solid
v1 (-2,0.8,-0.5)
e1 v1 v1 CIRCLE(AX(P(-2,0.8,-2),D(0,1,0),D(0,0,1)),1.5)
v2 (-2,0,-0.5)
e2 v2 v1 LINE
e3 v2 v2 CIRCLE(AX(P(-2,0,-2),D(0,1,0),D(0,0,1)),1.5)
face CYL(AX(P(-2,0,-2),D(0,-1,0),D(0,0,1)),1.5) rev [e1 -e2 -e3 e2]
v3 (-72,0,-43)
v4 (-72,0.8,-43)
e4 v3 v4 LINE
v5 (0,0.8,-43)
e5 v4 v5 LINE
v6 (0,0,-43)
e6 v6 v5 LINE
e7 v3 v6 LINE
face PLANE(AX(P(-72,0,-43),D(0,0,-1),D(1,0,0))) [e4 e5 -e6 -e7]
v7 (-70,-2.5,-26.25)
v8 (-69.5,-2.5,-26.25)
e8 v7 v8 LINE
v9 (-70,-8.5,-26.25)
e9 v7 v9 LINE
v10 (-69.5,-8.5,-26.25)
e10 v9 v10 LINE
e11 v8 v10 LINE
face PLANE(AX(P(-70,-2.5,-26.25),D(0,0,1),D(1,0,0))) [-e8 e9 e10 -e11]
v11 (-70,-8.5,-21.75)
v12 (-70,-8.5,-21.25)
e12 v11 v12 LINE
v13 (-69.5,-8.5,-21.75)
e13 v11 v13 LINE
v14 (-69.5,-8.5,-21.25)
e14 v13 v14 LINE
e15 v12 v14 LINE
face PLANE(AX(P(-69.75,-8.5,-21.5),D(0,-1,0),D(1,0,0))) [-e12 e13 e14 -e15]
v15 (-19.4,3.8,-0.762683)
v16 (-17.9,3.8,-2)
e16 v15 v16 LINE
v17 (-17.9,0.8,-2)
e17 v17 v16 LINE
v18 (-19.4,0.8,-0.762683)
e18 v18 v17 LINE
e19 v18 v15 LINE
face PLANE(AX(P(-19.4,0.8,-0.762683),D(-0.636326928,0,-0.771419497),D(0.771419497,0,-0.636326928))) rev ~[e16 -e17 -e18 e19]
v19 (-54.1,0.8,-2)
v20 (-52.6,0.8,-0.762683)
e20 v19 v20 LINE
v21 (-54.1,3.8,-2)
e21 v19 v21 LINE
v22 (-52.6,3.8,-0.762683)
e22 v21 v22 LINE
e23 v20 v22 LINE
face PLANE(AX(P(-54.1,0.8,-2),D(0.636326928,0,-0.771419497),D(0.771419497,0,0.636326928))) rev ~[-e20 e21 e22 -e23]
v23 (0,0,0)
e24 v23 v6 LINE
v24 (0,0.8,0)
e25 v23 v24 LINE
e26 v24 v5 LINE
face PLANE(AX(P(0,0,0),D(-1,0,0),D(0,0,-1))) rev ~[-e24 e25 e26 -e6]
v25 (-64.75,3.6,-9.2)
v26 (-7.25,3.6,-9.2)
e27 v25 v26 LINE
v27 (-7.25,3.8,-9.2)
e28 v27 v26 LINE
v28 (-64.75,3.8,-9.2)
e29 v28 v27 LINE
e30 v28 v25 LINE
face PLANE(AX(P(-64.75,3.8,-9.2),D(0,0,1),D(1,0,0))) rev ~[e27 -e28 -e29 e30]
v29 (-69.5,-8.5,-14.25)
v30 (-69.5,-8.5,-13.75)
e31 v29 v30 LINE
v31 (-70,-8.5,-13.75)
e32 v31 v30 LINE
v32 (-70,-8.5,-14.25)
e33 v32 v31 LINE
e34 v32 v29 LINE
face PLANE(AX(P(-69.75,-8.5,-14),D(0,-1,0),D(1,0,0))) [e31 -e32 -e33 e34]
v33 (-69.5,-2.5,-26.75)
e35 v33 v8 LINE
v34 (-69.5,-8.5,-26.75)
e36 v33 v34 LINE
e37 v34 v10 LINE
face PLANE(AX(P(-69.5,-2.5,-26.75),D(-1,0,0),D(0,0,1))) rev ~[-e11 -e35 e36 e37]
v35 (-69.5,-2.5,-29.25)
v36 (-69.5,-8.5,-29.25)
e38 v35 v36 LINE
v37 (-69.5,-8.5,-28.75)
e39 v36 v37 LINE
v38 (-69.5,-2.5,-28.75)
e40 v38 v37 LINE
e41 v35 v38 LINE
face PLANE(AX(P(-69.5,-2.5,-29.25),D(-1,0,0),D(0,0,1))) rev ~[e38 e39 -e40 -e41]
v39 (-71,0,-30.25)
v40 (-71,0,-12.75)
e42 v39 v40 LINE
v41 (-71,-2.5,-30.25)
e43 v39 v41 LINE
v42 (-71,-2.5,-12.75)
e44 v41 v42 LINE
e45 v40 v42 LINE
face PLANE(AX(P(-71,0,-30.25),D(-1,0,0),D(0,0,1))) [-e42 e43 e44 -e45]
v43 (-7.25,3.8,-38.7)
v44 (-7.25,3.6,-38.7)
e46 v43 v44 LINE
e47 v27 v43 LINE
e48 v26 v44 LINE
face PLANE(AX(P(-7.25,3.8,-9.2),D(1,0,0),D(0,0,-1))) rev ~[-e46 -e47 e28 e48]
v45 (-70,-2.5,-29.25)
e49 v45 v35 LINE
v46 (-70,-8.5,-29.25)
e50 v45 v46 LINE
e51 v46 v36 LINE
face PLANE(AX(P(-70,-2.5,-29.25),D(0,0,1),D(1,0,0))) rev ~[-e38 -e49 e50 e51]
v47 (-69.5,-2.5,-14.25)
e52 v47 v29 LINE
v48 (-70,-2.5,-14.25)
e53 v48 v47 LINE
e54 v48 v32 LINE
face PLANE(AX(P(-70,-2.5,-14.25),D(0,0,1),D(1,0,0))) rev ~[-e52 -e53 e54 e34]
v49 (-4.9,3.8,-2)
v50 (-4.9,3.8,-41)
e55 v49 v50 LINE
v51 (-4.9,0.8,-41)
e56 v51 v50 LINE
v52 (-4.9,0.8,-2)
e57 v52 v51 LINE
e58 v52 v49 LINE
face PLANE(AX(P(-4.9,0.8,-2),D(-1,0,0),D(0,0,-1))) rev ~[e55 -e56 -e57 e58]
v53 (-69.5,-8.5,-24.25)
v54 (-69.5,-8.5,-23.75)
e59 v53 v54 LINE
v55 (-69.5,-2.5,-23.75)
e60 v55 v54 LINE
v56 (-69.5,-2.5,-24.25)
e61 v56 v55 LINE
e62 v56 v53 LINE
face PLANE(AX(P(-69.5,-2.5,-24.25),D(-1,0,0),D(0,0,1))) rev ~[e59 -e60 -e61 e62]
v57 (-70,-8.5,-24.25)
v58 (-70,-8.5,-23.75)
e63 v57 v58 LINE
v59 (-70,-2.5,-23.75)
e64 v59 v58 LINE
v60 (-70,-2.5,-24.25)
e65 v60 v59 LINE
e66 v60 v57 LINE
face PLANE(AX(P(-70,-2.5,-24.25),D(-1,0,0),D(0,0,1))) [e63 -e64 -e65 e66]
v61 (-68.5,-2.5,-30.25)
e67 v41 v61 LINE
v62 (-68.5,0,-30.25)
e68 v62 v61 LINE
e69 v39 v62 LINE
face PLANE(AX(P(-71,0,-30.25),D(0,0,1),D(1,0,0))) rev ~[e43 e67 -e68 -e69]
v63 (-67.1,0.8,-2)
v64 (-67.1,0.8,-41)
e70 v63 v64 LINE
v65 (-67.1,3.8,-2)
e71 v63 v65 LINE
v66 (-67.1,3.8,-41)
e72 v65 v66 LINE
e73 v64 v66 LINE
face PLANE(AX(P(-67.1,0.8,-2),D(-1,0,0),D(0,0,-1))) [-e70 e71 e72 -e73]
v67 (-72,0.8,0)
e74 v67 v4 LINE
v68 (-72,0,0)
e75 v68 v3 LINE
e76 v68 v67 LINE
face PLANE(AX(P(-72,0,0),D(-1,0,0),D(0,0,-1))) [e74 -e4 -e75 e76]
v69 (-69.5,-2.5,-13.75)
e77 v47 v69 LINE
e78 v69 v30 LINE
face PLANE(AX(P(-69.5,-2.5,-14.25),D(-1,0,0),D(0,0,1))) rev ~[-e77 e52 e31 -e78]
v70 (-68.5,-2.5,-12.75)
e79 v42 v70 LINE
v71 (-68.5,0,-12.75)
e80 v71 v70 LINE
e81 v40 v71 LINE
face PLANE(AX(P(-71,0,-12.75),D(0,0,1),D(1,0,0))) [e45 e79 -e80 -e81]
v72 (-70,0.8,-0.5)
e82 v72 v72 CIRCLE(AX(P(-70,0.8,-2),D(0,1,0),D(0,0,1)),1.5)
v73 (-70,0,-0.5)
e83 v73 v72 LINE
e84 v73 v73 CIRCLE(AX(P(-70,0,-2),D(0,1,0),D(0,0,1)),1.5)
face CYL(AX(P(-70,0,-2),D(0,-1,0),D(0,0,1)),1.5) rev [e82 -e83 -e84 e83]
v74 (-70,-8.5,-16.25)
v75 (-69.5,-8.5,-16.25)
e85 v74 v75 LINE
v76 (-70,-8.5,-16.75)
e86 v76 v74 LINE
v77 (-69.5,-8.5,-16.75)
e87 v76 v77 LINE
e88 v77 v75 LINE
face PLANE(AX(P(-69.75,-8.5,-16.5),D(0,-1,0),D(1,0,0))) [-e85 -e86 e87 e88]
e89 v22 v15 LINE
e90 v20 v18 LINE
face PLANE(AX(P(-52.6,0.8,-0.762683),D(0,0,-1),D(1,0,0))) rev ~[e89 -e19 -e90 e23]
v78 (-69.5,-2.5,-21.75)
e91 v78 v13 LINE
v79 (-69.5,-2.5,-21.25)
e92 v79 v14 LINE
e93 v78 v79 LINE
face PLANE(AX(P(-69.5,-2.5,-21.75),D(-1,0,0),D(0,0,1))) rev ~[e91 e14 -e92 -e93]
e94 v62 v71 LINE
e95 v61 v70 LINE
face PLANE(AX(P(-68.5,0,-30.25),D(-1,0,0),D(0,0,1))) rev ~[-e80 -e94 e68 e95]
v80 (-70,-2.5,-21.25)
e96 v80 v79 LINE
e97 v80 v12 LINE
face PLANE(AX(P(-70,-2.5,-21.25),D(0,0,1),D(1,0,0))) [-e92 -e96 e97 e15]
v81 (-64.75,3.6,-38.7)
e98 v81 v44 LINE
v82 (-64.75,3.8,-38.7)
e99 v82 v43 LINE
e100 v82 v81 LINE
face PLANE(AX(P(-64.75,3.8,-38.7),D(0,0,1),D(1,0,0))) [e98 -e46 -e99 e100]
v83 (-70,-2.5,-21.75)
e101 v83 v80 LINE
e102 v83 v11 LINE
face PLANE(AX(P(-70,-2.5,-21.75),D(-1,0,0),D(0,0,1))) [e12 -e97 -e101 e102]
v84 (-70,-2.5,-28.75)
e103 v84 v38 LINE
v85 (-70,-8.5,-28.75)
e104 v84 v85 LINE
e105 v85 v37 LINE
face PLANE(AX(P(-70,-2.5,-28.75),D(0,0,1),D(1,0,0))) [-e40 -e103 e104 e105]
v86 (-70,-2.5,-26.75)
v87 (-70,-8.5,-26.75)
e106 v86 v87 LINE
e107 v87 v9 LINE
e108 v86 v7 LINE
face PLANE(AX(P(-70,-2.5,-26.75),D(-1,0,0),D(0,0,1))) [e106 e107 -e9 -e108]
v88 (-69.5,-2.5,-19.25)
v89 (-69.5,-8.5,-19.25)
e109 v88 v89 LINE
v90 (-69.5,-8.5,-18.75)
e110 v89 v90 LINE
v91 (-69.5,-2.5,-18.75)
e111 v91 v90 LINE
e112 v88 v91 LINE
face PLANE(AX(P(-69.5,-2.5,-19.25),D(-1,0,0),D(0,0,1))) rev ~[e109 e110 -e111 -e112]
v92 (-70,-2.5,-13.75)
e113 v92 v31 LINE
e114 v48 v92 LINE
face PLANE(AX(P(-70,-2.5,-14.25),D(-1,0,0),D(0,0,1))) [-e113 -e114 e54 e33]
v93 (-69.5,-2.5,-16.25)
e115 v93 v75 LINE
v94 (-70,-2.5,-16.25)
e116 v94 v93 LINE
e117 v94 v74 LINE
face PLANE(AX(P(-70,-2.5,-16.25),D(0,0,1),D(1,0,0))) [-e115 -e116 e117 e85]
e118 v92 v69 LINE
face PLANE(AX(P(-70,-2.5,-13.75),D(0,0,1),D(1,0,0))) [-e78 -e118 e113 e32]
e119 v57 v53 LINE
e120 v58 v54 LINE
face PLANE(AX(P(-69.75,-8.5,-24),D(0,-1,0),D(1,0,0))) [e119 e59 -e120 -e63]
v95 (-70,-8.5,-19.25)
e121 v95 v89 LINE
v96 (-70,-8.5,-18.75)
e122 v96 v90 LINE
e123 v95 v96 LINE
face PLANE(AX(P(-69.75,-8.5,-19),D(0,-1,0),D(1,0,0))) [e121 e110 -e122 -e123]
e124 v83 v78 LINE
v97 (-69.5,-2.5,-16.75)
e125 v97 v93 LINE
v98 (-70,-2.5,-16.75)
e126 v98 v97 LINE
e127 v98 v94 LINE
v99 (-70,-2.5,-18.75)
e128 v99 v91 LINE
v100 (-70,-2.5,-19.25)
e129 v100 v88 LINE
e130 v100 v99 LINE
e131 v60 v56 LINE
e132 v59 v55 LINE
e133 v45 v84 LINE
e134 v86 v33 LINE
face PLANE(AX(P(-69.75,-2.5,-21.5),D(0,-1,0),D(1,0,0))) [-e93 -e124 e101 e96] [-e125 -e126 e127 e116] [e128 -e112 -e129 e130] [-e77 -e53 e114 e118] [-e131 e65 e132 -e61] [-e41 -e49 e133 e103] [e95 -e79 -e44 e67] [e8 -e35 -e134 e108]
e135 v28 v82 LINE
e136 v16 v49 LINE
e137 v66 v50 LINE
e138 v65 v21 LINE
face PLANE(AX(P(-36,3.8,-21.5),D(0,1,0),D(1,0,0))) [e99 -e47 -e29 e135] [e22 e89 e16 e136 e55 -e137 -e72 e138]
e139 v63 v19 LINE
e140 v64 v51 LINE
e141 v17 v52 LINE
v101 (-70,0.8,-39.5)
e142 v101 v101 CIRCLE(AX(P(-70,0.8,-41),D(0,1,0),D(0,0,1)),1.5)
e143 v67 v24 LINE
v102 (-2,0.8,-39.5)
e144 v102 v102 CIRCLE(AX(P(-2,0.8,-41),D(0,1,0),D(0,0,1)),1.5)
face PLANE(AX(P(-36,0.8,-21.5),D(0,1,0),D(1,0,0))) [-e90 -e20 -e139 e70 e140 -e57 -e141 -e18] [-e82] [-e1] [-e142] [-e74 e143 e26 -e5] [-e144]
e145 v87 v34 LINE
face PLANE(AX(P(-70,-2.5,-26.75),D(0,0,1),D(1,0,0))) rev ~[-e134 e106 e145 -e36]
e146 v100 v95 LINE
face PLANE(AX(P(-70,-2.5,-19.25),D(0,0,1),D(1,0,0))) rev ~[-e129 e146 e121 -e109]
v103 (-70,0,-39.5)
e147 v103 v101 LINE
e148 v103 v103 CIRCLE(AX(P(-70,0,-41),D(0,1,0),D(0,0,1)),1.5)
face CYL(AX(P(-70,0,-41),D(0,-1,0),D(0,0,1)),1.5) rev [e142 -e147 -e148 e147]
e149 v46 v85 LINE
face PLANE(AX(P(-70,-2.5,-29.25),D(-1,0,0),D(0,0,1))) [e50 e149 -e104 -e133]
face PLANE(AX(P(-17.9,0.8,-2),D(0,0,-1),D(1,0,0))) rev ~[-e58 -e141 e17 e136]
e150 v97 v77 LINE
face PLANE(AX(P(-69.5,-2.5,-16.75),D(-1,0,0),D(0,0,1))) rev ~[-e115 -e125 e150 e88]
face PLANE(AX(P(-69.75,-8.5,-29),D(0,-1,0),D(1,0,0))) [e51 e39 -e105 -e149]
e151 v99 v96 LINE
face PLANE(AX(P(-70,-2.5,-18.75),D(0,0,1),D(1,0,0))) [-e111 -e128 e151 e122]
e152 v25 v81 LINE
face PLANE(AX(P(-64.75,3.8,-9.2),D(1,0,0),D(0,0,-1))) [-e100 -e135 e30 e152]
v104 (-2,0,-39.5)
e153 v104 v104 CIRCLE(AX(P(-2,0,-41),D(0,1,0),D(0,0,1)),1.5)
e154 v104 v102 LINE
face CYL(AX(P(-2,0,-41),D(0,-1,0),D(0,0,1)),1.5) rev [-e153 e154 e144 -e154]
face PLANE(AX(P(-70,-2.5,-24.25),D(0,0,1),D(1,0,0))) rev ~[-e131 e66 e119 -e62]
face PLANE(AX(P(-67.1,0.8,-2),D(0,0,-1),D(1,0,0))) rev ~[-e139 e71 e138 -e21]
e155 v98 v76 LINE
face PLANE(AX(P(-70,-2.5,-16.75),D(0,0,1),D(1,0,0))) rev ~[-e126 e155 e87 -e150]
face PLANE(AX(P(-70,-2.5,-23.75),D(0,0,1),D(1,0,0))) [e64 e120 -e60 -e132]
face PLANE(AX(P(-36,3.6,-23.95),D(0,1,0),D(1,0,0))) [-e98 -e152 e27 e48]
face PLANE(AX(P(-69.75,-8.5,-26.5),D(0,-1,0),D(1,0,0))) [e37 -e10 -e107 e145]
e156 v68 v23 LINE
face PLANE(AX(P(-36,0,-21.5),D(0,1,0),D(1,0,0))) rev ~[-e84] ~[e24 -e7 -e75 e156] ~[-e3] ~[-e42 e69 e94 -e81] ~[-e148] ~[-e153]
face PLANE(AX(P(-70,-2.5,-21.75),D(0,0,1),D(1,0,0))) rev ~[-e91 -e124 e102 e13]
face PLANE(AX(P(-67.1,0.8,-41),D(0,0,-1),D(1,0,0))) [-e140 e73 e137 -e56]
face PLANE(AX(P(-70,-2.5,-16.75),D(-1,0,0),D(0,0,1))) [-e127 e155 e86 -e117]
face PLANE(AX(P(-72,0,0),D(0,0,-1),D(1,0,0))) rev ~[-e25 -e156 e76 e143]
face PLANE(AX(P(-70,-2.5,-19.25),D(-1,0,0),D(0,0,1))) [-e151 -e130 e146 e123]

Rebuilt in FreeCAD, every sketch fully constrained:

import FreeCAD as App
import Part
import Sketcher

V = App.Vector

doc = App.newDocument("Part")
body = doc.addObject("PartDesign::Body", "Body")

# Sketch on XZ plane
sketch1 = body.newObject("Sketcher::SketchObject", "Sketch")
sketch1.AttachmentSupport = (doc.getObject("XZ_Plane"), [""])
sketch1.MapMode = "FlatFace"
sketch1.addGeometry([
    Part.LineSegment(V(-72, -43, 0), V(-72, 0, 0)),  # 0
    Part.LineSegment(V(-72, 0, 0), V(0, 0, 0)),  # 1
    Part.LineSegment(V(0, 0, 0), V(0, -43, 0)),  # 2
    Part.LineSegment(V(0, -43, 0), V(-72, -43, 0)),  # 3
    Part.Circle(V(-70, -2, 0), V(0, 0, 1), 1.5),  # 4
    Part.Circle(V(-2, -2, 0), V(0, 0, 1), 1.5),  # 5
    Part.Circle(V(-70, -41, 0), V(0, 0, 1), 1.5),  # 6
    Part.Circle(V(-2, -41, 0), V(0, 0, 1), 1.5),  # 7
], False)
sketch1.addConstraint([
    Sketcher.Constraint("Coincident", 0, 2, 1, 1),
    Sketcher.Constraint("Coincident", 1, 2, 2, 1),
    Sketcher.Constraint("Coincident", 2, 2, 3, 1),
    Sketcher.Constraint("Coincident", 3, 2, 0, 1),
    Sketcher.Constraint("Vertical", 0),
    Sketcher.Constraint("Horizontal", 1),
    Sketcher.Constraint("Vertical", 2),
    Sketcher.Constraint("Horizontal", 3),
    Sketcher.Constraint("Coincident", 1, 2, -1, 1),
    Sketcher.Constraint("Equal", 4, 5),
    Sketcher.Constraint("Equal", 5, 6),
    Sketcher.Constraint("Equal", 6, 7),
    Sketcher.Constraint("Horizontal", 4, 3, 5, 3),
    Sketcher.Constraint("Horizontal", 6, 3, 7, 3),
    Sketcher.Constraint("Vertical", 4, 3, 6, 3),
    Sketcher.Constraint("Vertical", 5, 3, 7, 3),
    Sketcher.Constraint("Diameter", 4, 3.0),
    Sketcher.Constraint("DistanceX", 1, 1, 1, 2, 72.0),
    Sketcher.Constraint("DistanceY", 0, 1, 0, 2, 43.0),
    Sketcher.Constraint("DistanceX", 4, 3, -1, 1, 70.0),
    Sketcher.Constraint("DistanceY", 4, 3, -1, 1, 2.0),
    Sketcher.Constraint("DistanceX", 5, 3, -1, 1, 2.0),
    Sketcher.Constraint("DistanceY", 6, 3, -1, 1, 41.0),
])
pad1 = body.newObject("PartDesign::Pad", "Pad")
pad1.Profile = sketch1
pad1.Length = 0.8
pad1.Reversed = True

# Sketch on XZ plane
sketch2 = body.newObject("Sketcher::SketchObject", "Sketch001")
sketch2.AttachmentSupport = (doc.getObject("XZ_Plane"), [""])
sketch2.MapMode = "FlatFace"
sketch2.AttachmentOffset = App.Placement(V(0, 0, -0.8), App.Rotation())
sketch2.addGeometry([
    Part.LineSegment(V(-67.1, -41, 0), V(-67.1, -2, 0)),  # 0
    Part.LineSegment(V(-67.1, -2, 0), V(-54.1, -2, 0)),  # 1
    Part.LineSegment(V(-54.1, -2, 0), V(-52.6, -0.8, 0)),  # 2
    Part.LineSegment(V(-52.6, -0.8, 0), V(-19.4, -0.8, 0)),  # 3
    Part.LineSegment(V(-19.4, -0.8, 0), V(-17.9, -2, 0)),  # 4
    Part.LineSegment(V(-17.9, -2, 0), V(-4.9, -2, 0)),  # 5
    Part.LineSegment(V(-4.9, -2, 0), V(-4.9, -41, 0)),  # 6
    Part.LineSegment(V(-4.9, -41, 0), V(-67.1, -41, 0)),  # 7
], False)
sketch2.addConstraint([
    Sketcher.Constraint("Coincident", 0, 2, 1, 1),
    Sketcher.Constraint("Coincident", 1, 2, 2, 1),
    Sketcher.Constraint("Coincident", 2, 2, 3, 1),
    Sketcher.Constraint("Coincident", 3, 2, 4, 1),
    Sketcher.Constraint("Coincident", 4, 2, 5, 1),
    Sketcher.Constraint("Coincident", 5, 2, 6, 1),
    Sketcher.Constraint("Coincident", 6, 2, 7, 1),
    Sketcher.Constraint("Coincident", 7, 2, 0, 1),
    Sketcher.Constraint("Vertical", 0),
    Sketcher.Constraint("Horizontal", 1),
    Sketcher.Constraint("Horizontal", 3),
    Sketcher.Constraint("Horizontal", 5),
    Sketcher.Constraint("Vertical", 6),
    Sketcher.Constraint("Horizontal", 7),
    Sketcher.Constraint("Horizontal", 1, 2, 4, 2),
    Sketcher.Constraint("Equal", 1, 5),
    Sketcher.Constraint("Equal", 2, 4),
    Sketcher.Constraint("DistanceX", 1, 1, 1, 2, 13.0),
    Sketcher.Constraint("DistanceY", 0, 1, 0, 2, 39.0),
    Sketcher.Constraint("DistanceX", 3, 1, 3, 2, 33.2),
    Sketcher.Constraint("DistanceX", 7, 2, 7, 1, 62.2),
    Sketcher.Constraint("DistanceY", 0, 2, -1, 1, 2.0),
    Sketcher.Constraint("DistanceX", 0, 2, -1, 1, 67.1),
    Sketcher.Constraint("Distance", 2, 1.944467),
])
pad2 = body.newObject("PartDesign::Pad", "Pad001")
pad2.Profile = sketch2
pad2.Length = 3
pad2.Reversed = True

# Sketch on XZ plane
sketch3 = body.newObject("Sketcher::SketchObject", "Sketch002")
sketch3.AttachmentSupport = (doc.getObject("XZ_Plane"), [""])
sketch3.MapMode = "FlatFace"
sketch3.AttachmentOffset = App.Placement(V(0, 0, -3.8), App.Rotation())
sketch3.addGeometry([
    Part.LineSegment(V(-65, -39, 0), V(-65, -9, 0)),
    Part.LineSegment(V(-65, -9, 0), V(-7, -9, 0)),
    Part.LineSegment(V(-7, -9, 0), V(-7, -39, 0)),
    Part.LineSegment(V(-7, -39, 0), V(-65, -39, 0)),
], False)
sketch3.addConstraint([
    Sketcher.Constraint("Coincident", 0, 2, 1, 1),
    Sketcher.Constraint("Coincident", 1, 2, 2, 1),
    Sketcher.Constraint("Coincident", 2, 2, 3, 1),
    Sketcher.Constraint("Coincident", 3, 2, 0, 1),
    Sketcher.Constraint("Vertical", 0),
    Sketcher.Constraint("Horizontal", 1),
    Sketcher.Constraint("Vertical", 2),
    Sketcher.Constraint("Horizontal", 3),
    Sketcher.Constraint("DistanceX", 1, 1, 1, 2, 57.5),
    Sketcher.Constraint("DistanceY", 0, 1, 0, 2, 29.5),
    Sketcher.Constraint("DistanceY", 0, 2, -1, 1, 9.2),
    Sketcher.Constraint("DistanceX", 0, 2, -1, 1, 64.75),
])
pocket1 = body.newObject("PartDesign::Pocket", "Pocket")
pocket1.Profile = sketch3
pocket1.Length = 0.2
pocket1.Reversed = True

# Sketch on XZ plane
sketch4 = body.newObject("Sketcher::SketchObject", "Sketch003")
sketch4.AttachmentSupport = (doc.getObject("XZ_Plane"), [""])
sketch4.MapMode = "FlatFace"
sketch4.addGeometry([
    Part.LineSegment(V(-71, -12.8, 0), V(-71, -30.2, 0)),
    Part.LineSegment(V(-71, -30.2, 0), V(-68.5, -30.2, 0)),
    Part.LineSegment(V(-68.5, -30.2, 0), V(-68.5, -12.8, 0)),
    Part.LineSegment(V(-68.5, -12.8, 0), V(-71, -12.8, 0)),
], False)
sketch4.addConstraint([
    Sketcher.Constraint("Coincident", 0, 2, 1, 1),
    Sketcher.Constraint("Coincident", 1, 2, 2, 1),
    Sketcher.Constraint("Coincident", 2, 2, 3, 1),
    Sketcher.Constraint("Coincident", 3, 2, 0, 1),
    Sketcher.Constraint("Vertical", 0),
    Sketcher.Constraint("Horizontal", 1),
    Sketcher.Constraint("Vertical", 2),
    Sketcher.Constraint("Horizontal", 3),
    Sketcher.Constraint("DistanceX", 1, 1, 1, 2, 2.5),
    Sketcher.Constraint("DistanceY", 0, 2, 0, 1, 17.5),
    Sketcher.Constraint("DistanceX", 0, 2, -1, 1, 71.0),
    Sketcher.Constraint("DistanceY", 0, 2, -1, 1, 30.25),
])
pad3 = body.newObject("PartDesign::Pad", "Pad002")
pad3.Profile = sketch4
pad3.Length = 2.5

# Sketch on XZ plane
sketch5 = body.newObject("Sketcher::SketchObject", "Sketch004")
sketch5.AttachmentSupport = (doc.getObject("XZ_Plane"), [""])
sketch5.MapMode = "FlatFace"
sketch5.AttachmentOffset = App.Placement(V(0, 0, 2.5), App.Rotation())
sketch5.addGeometry([
    Part.LineSegment(V(-70, -13.8, 0), V(-70, -14.2, 0)),
    Part.LineSegment(V(-70, -14.2, 0), V(-69.5, -14.2, 0)),
    Part.LineSegment(V(-69.5, -14.2, 0), V(-69.5, -13.8, 0)),
    Part.LineSegment(V(-69.5, -13.8, 0), V(-70, -13.8, 0)),
], False)
sketch5.addConstraint([
    Sketcher.Constraint("Coincident", 0, 2, 1, 1),
    Sketcher.Constraint("Coincident", 1, 2, 2, 1),
    Sketcher.Constraint("Coincident", 2, 2, 3, 1),
    Sketcher.Constraint("Coincident", 3, 2, 0, 1),
    Sketcher.Constraint("Vertical", 0),
    Sketcher.Constraint("Horizontal", 1),
    Sketcher.Constraint("Vertical", 2),
    Sketcher.Constraint("Horizontal", 3),
    Sketcher.Constraint("Equal", 3, 0),
    Sketcher.Constraint("DistanceX", 1, 1, 1, 2, 0.5),
    Sketcher.Constraint("DistanceX", 0, 2, -1, 1, 70.0),
    Sketcher.Constraint("DistanceY", 0, 2, -1, 1, 14.25),
])
pad4 = body.newObject("PartDesign::Pad", "Pad003")
pad4.Profile = sketch5
pad4.Length = 6
doc.recompute()

linearpattern = body.newObject("PartDesign::LinearPattern", "LinearPattern")
linearpattern.Originals = [pad4]
linearpattern.Direction = (doc.getObject("Z_Axis"), [""])
linearpattern.Mode = "offset"
linearpattern.Offset = 2.5
linearpattern.Occurrences = 7
linearpattern.Reversed = True
body.Tip = linearpattern

doc.recompute()
